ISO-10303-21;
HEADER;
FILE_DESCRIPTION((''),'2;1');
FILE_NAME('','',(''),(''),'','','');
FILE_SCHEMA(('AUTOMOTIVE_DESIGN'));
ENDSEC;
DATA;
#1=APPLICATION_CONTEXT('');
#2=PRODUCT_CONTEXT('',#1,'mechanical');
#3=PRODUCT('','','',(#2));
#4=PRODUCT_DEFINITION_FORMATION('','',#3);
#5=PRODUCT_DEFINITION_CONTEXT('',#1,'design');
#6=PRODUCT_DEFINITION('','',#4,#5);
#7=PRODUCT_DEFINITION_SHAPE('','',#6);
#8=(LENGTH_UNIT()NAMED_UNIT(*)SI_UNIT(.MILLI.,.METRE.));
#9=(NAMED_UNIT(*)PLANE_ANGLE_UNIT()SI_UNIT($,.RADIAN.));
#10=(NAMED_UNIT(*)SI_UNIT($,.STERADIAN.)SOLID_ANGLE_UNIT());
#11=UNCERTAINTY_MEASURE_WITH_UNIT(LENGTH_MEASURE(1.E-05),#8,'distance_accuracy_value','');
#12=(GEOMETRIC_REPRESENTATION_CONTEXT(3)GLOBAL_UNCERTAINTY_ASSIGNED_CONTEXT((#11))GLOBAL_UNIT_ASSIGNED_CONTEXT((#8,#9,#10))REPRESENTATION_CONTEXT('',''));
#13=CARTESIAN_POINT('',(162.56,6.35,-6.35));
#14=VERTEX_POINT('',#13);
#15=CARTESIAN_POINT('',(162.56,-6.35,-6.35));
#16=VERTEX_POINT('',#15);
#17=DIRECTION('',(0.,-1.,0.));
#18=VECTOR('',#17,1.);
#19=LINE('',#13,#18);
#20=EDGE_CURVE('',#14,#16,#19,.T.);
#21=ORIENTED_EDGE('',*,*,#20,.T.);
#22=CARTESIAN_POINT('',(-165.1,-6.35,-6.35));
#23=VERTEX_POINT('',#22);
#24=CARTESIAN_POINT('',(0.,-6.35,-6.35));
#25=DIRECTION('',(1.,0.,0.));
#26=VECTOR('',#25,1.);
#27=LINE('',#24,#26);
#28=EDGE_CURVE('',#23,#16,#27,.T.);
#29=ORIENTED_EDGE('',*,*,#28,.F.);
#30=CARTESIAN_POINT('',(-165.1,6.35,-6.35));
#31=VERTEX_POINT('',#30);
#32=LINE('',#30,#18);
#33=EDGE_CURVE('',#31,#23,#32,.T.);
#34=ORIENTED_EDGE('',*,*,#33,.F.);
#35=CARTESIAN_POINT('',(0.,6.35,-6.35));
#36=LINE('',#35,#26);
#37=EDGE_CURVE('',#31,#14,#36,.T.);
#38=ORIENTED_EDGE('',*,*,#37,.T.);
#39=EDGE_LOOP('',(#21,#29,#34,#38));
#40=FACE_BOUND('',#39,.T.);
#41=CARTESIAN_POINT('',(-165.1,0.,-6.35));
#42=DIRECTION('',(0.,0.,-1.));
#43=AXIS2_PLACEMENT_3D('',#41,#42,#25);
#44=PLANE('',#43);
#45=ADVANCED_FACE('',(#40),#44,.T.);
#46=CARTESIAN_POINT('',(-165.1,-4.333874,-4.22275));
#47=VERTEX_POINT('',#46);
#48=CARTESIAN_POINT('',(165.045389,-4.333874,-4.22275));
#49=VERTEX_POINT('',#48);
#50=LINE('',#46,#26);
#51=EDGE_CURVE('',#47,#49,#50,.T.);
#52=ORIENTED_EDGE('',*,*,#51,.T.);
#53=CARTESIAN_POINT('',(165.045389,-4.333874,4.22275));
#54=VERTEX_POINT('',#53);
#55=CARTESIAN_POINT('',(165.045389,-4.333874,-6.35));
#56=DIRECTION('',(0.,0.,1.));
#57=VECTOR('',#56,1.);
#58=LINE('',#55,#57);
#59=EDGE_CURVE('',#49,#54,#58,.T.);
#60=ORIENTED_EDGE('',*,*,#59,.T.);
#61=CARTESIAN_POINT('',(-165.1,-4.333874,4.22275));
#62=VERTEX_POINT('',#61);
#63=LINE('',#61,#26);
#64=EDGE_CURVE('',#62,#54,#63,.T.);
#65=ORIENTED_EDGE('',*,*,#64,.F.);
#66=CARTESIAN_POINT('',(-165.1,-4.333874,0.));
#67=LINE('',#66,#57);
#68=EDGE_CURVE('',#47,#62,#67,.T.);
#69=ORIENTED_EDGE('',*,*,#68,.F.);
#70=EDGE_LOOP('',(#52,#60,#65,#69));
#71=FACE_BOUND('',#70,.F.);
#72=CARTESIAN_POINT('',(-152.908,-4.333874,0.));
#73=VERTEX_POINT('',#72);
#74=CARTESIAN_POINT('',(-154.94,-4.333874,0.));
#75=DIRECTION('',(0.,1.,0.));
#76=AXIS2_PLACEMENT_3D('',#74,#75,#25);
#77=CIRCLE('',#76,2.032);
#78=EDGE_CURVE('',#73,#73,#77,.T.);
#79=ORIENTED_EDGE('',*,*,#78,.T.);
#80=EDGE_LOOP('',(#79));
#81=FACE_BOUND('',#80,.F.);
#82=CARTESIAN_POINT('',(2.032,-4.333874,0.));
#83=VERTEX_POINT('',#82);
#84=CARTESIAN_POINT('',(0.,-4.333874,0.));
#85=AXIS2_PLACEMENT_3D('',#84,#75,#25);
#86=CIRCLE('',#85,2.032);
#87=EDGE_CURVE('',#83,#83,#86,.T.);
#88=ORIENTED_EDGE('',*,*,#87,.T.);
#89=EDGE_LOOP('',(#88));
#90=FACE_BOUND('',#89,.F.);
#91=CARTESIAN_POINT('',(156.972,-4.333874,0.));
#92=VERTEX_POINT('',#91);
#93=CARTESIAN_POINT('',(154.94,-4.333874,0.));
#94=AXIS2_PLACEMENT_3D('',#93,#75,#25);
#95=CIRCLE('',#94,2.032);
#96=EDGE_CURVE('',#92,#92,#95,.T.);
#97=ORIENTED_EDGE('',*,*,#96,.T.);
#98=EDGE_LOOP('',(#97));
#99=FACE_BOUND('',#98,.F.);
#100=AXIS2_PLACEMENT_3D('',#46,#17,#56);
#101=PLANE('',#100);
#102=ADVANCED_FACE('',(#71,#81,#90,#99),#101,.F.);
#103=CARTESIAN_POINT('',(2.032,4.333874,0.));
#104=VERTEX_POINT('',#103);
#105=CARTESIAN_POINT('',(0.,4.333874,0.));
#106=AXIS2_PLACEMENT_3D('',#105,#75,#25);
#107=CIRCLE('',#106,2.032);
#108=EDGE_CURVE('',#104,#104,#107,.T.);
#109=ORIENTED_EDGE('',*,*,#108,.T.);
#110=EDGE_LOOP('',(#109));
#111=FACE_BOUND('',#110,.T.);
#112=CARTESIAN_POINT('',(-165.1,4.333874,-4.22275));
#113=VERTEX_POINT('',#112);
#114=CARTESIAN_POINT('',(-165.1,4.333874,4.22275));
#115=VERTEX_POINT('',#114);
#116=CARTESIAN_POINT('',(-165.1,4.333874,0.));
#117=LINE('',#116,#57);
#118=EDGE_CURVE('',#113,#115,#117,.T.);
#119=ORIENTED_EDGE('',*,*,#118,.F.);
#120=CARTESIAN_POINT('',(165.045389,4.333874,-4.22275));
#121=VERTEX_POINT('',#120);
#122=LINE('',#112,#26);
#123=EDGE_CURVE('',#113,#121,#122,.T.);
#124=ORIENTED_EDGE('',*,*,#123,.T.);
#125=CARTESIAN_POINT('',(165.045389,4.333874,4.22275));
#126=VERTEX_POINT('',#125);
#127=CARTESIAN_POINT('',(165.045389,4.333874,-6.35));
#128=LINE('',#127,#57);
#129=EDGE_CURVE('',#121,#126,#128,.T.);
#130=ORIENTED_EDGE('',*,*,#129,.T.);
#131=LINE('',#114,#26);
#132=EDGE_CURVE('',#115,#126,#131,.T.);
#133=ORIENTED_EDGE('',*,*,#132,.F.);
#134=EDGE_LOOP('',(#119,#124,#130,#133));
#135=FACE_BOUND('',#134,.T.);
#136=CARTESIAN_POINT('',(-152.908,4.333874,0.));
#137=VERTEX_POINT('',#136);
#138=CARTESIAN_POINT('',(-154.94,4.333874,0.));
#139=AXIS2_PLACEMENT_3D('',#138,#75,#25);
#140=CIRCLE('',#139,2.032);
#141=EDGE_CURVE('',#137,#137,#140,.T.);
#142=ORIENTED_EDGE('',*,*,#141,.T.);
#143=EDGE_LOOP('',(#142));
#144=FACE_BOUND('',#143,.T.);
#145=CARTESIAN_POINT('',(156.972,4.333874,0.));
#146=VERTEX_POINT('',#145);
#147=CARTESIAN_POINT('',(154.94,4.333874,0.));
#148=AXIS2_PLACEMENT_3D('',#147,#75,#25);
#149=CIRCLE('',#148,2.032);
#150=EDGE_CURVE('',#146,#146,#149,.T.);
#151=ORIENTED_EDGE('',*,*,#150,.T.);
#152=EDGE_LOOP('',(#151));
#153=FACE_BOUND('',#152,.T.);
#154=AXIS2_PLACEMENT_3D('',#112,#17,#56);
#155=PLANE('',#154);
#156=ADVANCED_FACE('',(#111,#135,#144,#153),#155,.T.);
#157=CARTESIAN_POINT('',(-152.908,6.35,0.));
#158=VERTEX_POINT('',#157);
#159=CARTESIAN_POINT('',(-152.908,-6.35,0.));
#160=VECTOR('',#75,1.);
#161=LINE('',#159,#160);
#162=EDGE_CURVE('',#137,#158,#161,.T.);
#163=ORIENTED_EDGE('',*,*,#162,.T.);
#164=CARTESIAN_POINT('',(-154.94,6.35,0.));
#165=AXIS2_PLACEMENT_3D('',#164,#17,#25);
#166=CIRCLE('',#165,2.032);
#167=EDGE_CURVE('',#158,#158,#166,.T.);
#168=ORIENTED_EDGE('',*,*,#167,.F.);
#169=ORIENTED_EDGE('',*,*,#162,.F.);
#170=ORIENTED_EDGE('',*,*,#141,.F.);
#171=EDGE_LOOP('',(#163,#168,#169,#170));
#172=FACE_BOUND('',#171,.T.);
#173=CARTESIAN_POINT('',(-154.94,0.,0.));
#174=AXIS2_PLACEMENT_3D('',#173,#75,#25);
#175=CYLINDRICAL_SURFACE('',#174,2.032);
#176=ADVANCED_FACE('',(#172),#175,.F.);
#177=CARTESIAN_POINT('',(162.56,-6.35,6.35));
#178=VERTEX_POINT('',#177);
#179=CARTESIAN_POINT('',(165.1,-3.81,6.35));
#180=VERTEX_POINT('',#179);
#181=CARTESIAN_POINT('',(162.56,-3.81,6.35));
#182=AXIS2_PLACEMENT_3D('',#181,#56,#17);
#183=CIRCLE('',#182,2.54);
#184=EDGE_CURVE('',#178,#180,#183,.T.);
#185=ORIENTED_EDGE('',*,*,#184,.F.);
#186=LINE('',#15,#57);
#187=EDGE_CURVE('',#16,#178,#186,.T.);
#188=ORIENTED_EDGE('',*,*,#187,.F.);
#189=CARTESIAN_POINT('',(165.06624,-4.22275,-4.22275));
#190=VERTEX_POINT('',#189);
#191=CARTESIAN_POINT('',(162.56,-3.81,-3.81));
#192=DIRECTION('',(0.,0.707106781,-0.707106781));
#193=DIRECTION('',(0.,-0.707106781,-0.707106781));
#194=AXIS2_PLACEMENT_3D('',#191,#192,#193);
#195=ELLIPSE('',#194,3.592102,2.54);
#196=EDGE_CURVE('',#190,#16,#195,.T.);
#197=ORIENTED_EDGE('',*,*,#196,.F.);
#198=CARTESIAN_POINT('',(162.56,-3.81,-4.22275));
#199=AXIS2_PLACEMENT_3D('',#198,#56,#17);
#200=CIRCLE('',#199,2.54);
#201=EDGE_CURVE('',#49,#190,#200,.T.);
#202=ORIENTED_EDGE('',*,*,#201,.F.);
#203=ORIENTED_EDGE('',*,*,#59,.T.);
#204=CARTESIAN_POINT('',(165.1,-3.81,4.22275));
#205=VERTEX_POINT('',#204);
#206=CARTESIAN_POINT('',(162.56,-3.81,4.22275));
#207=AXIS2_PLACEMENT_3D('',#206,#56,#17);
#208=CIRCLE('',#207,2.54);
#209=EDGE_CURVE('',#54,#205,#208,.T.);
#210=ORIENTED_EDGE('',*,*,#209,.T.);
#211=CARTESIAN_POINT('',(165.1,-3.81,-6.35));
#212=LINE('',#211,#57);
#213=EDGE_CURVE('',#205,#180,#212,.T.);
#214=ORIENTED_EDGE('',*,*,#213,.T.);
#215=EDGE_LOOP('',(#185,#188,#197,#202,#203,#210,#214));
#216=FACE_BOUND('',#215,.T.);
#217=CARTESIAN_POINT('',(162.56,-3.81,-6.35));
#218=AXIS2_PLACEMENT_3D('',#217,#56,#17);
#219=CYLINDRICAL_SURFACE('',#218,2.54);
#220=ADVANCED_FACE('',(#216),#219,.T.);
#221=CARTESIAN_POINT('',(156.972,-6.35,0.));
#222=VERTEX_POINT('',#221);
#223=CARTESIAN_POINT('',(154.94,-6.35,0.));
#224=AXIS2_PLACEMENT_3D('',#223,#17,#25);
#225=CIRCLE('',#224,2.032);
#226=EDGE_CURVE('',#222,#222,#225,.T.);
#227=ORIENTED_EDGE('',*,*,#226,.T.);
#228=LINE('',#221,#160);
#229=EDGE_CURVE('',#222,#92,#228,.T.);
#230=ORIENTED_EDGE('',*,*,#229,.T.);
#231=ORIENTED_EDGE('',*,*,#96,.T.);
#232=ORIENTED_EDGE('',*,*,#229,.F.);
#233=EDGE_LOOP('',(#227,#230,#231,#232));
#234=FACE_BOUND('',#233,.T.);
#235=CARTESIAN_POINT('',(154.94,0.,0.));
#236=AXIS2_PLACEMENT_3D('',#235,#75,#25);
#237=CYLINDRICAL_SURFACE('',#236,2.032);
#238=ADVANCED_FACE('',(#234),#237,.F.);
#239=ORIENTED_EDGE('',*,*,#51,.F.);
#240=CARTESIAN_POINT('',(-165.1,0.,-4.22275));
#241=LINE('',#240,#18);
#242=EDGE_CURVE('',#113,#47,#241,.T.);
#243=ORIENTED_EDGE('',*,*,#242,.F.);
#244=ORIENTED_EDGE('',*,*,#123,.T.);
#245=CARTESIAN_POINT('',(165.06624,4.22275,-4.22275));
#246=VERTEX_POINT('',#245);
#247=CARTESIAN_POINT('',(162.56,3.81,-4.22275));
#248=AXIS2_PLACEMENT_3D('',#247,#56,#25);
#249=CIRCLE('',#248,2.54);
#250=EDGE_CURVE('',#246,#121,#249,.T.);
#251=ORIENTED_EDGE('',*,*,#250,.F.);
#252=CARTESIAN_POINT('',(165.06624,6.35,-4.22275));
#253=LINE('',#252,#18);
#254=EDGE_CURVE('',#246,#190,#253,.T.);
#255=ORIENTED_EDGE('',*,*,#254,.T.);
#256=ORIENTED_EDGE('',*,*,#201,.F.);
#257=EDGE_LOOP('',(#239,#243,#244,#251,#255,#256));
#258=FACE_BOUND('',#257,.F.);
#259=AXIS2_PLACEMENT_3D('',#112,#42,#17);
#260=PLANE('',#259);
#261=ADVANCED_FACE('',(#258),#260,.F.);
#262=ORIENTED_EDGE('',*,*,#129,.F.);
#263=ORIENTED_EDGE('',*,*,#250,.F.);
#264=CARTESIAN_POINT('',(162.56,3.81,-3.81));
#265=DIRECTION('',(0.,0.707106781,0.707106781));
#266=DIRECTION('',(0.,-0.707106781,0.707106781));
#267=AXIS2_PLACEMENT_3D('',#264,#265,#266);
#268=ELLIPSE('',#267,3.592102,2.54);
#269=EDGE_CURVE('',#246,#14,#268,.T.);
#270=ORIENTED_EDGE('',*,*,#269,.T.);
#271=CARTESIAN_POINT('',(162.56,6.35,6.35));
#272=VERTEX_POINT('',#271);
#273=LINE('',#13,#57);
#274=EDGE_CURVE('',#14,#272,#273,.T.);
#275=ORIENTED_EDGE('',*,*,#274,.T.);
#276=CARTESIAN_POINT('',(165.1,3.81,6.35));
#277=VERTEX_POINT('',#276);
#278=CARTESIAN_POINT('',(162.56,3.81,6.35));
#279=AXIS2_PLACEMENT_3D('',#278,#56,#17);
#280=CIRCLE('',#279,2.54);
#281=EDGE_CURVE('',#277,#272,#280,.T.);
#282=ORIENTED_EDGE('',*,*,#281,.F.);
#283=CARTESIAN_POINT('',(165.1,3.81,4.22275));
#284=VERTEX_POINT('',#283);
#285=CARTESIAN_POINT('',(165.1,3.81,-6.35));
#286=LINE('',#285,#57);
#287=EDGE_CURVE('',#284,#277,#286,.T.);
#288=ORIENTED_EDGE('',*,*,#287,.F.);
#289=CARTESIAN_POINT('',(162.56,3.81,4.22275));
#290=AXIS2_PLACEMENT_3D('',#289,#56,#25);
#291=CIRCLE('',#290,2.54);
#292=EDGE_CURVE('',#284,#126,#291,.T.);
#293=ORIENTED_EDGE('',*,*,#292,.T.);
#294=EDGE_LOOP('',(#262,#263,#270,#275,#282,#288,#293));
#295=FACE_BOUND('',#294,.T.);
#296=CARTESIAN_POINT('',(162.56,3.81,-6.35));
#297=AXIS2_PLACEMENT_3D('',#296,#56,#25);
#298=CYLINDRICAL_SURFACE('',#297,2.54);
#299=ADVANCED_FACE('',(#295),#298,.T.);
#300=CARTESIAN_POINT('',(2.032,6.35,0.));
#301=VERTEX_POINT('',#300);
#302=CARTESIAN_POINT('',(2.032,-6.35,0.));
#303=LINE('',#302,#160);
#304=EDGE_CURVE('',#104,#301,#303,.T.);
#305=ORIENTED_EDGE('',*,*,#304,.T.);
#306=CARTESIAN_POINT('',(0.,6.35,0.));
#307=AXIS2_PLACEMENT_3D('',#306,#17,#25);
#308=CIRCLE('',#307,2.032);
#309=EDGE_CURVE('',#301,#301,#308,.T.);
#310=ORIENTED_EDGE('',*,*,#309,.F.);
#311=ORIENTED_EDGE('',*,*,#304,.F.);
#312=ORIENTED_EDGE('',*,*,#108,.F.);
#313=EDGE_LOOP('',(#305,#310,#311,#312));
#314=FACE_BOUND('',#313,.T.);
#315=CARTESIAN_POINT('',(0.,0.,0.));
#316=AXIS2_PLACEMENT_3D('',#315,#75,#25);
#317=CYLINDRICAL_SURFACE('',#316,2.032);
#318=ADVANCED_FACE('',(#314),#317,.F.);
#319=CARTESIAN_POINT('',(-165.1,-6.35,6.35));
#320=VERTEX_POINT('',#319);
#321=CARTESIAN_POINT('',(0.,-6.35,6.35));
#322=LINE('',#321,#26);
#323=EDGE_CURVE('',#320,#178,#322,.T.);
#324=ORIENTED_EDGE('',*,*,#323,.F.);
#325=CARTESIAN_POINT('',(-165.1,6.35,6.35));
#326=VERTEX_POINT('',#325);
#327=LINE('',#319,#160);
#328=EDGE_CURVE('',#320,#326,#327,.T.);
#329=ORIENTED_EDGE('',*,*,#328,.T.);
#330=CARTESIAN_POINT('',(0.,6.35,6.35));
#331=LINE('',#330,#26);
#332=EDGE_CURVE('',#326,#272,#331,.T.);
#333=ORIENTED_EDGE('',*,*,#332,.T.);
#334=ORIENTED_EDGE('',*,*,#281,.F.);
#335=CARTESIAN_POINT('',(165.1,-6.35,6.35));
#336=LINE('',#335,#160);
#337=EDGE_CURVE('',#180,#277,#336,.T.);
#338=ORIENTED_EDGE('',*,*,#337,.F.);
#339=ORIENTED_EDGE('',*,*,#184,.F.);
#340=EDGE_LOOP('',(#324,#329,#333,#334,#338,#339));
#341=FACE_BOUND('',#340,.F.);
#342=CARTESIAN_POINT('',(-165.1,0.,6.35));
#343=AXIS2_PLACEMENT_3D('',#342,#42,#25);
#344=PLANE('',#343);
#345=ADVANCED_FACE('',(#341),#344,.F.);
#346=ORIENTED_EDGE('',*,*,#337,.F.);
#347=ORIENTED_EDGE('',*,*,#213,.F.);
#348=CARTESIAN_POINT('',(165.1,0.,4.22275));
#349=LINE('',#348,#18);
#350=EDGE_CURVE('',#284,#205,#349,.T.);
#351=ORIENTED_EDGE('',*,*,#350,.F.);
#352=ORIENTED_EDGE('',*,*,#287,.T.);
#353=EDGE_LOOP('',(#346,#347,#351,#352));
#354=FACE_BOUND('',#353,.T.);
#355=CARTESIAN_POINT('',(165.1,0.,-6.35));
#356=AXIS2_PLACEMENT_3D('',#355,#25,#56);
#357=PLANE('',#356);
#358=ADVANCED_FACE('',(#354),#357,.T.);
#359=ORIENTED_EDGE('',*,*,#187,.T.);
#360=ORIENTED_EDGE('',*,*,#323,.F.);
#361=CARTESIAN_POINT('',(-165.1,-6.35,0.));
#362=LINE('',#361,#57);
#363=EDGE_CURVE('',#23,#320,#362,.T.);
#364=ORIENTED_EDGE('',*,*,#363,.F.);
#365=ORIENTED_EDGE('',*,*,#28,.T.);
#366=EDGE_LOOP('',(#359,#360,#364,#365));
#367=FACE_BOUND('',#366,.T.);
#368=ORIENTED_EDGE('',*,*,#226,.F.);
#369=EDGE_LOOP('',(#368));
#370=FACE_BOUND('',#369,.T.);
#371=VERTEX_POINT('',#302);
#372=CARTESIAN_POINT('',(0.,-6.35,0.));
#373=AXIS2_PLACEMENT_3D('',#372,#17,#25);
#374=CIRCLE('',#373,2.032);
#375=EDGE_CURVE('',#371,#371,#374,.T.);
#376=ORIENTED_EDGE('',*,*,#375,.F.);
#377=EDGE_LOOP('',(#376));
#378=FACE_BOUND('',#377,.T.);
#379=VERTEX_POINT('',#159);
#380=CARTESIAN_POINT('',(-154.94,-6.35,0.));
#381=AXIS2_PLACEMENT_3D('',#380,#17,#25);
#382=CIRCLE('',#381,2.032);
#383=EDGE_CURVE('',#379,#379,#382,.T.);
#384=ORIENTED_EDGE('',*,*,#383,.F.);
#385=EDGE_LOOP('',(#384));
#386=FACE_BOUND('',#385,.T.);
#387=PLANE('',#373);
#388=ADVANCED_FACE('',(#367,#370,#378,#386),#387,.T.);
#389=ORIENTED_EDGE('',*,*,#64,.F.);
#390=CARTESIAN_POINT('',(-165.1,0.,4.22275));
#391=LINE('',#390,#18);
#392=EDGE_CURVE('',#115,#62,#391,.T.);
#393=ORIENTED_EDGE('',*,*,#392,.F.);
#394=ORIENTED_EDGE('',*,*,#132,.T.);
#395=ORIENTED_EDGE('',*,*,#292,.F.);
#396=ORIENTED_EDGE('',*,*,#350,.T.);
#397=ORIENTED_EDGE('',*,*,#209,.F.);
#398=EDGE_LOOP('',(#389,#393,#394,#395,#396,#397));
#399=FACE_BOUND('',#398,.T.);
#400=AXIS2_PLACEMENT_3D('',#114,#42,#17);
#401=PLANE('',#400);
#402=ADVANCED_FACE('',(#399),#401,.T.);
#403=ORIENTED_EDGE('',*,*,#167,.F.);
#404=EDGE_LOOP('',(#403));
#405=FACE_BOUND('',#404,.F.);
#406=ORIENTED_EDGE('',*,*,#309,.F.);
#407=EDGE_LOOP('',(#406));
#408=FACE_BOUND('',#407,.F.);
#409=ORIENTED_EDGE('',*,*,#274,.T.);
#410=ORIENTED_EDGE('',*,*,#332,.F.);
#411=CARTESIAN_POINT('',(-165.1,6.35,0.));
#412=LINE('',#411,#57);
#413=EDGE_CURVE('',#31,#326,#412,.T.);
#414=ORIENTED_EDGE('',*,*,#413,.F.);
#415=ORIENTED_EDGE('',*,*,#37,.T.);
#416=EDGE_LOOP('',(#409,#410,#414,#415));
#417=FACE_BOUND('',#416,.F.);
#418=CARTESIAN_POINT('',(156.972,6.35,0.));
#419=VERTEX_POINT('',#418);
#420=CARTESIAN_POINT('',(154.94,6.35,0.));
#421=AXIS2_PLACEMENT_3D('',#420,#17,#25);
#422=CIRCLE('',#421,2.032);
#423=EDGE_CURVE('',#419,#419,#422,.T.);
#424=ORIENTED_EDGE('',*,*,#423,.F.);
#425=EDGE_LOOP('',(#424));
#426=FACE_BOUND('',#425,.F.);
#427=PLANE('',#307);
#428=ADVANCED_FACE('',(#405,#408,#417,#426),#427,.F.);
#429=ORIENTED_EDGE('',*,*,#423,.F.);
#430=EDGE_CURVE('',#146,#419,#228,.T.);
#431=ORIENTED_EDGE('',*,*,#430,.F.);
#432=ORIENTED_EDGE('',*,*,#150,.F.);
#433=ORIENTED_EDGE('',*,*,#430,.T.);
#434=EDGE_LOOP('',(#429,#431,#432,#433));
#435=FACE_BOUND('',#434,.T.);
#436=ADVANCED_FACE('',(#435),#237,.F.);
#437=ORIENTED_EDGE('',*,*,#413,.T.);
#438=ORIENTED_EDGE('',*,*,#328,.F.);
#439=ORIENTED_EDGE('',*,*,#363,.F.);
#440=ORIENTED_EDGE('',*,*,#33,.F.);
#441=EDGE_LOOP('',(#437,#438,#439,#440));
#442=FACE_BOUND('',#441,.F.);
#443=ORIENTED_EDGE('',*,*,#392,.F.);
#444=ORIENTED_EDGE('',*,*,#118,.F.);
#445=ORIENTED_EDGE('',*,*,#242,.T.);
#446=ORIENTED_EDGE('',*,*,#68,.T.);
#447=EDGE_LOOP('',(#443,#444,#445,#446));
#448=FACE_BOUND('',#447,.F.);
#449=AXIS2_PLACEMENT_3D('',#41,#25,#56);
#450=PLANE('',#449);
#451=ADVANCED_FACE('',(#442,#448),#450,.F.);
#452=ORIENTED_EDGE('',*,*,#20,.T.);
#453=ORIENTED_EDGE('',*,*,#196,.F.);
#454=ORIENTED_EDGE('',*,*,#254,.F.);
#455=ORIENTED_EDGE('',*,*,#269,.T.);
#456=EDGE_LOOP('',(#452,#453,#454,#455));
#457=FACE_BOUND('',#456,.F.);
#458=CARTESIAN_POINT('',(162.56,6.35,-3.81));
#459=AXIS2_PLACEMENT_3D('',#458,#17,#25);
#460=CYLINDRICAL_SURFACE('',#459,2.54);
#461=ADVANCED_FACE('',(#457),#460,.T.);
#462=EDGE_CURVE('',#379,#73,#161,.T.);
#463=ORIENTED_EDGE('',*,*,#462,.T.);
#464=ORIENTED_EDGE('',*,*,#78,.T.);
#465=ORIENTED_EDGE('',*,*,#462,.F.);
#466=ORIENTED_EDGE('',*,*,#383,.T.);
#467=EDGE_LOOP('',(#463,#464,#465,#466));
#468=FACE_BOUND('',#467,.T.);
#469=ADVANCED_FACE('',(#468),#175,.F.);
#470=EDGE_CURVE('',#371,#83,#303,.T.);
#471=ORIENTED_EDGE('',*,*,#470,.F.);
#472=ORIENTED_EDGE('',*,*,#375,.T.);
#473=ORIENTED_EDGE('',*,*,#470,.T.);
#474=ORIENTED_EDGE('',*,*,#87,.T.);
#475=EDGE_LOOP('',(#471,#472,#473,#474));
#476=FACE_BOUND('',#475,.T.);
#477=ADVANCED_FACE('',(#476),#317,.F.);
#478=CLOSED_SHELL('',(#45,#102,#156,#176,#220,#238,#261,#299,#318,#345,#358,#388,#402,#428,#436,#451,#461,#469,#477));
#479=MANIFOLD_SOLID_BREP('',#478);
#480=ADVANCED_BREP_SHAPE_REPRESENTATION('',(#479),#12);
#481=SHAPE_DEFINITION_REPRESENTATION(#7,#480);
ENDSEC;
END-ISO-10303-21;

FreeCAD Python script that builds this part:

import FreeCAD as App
import Part
import Sketcher

V = App.Vector
Q = App.Units.Quantity


def edges_at(feature, points):
    """Names of the edges that pass closest to the given points."""
    edges = feature.Shape.Edges
    near = lambda p: min(range(len(edges)), key=lambda i: edges[i].distToShape(Part.Vertex(*p))[0])
    return sorted({f"Edge{near(p) + 1}" for p in points})


def add_polygon(sketch, points):
    """Adds a closed chain of lines whose ends are joined by coincident constraints."""
    first, n = sketch.GeometryCount, len(points)
    for a, b in zip(points, points[1:] + points[:1]):
        sketch.addGeometry(Part.LineSegment(App.Vector(*a, 0), App.Vector(*b, 0)), False)
    for i in range(n):
        sketch.addConstraint(Sketcher.Constraint("Coincident", first + i, 2, first + (i + 1) % n, 1))

doc = App.newDocument("Part")
body = doc.addObject("PartDesign::Body", "Body")

sketch1 = body.newObject("Sketcher::SketchObject", "Sketch")
sketch1.AttachmentSupport = (doc.getObject("XZ_Plane"), [""])
sketch1.MapMode = "FlatFace"
add_polygon(sketch1, [(-165.1, 6.3), (-165.1, -6.3), (165.1, -6.3), (165.1, 6.3)])
sketch1.addGeometry(Part.Circle(V(-154.9, 0, 0), V(0, 0, 1), 2), False)
sketch1.addGeometry(Part.Circle(V(0, 0, 0), V(0, 0, 1), 2), False)
sketch1.addGeometry(Part.Circle(V(154.9, 0, 0), V(0, 0, 1), 2), False)
sketch1.addConstraint(Sketcher.Constraint("Vertical", 0))
sketch1.addConstraint(Sketcher.Constraint("Horizontal", 1))
sketch1.addConstraint(Sketcher.Constraint("Vertical", 2))
sketch1.addConstraint(Sketcher.Constraint("Horizontal", 3))
sketch1.addConstraint(Sketcher.Constraint("Coincident", 5, 3, -1, 1))
sketch1.addConstraint(Sketcher.Constraint("Equal", 4, 5))
sketch1.addConstraint(Sketcher.Constraint("Equal", 5, 6))
sketch1.addConstraint(Sketcher.Constraint("Symmetric", 4, 3, 6, 3, -1, 1))
sketch1.addConstraint(Sketcher.Constraint("Symmetric", 0, 2, 2, 2, -1, 1))
sketch1.addConstraint(Sketcher.Constraint("PointOnObject", 4, 3, -1))
sketch1.addConstraint(Sketcher.Constraint("Diameter", 4, Q("0.16 in")))
sketch1.addConstraint(Sketcher.Constraint("DistanceX", 1, 1, 1, 2, Q("13 in")))
sketch1.addConstraint(Sketcher.Constraint("DistanceY", 0, 2, 0, 1, Q("0.5 in")))
sketch1.addConstraint(Sketcher.Constraint("DistanceX", 4, 3, -1, 1, Q("6.1 in")))
pad1 = body.newObject("PartDesign::Pad", "Pad")
pad1.Profile = sketch1
pad1.Length = Q("0.5 in")
pad1.Midplane = True
doc.recompute()

fillet = body.newObject("PartDesign::Fillet", "Fillet")
fillet.Base = (pad1, edges_at(pad1, [(165.1, 0, -6.35), (165.1, 6.35, 0), (165.1, -6.35, 0)]))
fillet.Radius = Q("0.1 in")

sketch2 = body.newObject("Sketcher::SketchObject", "Sketch001")
sketch2.AttachmentSupport = (doc.getObject("YZ_Plane"), [""])
sketch2.MapMode = "FlatFace"
sketch2.AttachmentOffset = App.Placement(V(0, 0, -6.5 * 25.4), App.Rotation())
add_polygon(sketch2, [(4, 4), (4, -4), (-4, -4), (-4, 4)])
sketch2.addConstraint(Sketcher.Constraint("Vertical", 0))
sketch2.addConstraint(Sketcher.Constraint("Horizontal", 1))
sketch2.addConstraint(Sketcher.Constraint("Vertical", 2))
sketch2.addConstraint(Sketcher.Constraint("Horizontal", 3))
sketch2.addConstraint(Sketcher.Constraint("Symmetric", 0, 2, 2, 2, -1, 1))
sketch2.addConstraint(Sketcher.Constraint("DistanceY", 0, 2, 0, 1, Q("0.3325 in")))
sketch2.addConstraint(Sketcher.Constraint("DistanceX", 1, 2, 1, 1, Q("8.667747 mm")))
pocket1 = body.newObject("PartDesign::Pocket", "Pocket")
pocket1.Profile = sketch2
pocket1.Length = Q("13 in")
pocket1.Reversed = True

doc.recompute()
